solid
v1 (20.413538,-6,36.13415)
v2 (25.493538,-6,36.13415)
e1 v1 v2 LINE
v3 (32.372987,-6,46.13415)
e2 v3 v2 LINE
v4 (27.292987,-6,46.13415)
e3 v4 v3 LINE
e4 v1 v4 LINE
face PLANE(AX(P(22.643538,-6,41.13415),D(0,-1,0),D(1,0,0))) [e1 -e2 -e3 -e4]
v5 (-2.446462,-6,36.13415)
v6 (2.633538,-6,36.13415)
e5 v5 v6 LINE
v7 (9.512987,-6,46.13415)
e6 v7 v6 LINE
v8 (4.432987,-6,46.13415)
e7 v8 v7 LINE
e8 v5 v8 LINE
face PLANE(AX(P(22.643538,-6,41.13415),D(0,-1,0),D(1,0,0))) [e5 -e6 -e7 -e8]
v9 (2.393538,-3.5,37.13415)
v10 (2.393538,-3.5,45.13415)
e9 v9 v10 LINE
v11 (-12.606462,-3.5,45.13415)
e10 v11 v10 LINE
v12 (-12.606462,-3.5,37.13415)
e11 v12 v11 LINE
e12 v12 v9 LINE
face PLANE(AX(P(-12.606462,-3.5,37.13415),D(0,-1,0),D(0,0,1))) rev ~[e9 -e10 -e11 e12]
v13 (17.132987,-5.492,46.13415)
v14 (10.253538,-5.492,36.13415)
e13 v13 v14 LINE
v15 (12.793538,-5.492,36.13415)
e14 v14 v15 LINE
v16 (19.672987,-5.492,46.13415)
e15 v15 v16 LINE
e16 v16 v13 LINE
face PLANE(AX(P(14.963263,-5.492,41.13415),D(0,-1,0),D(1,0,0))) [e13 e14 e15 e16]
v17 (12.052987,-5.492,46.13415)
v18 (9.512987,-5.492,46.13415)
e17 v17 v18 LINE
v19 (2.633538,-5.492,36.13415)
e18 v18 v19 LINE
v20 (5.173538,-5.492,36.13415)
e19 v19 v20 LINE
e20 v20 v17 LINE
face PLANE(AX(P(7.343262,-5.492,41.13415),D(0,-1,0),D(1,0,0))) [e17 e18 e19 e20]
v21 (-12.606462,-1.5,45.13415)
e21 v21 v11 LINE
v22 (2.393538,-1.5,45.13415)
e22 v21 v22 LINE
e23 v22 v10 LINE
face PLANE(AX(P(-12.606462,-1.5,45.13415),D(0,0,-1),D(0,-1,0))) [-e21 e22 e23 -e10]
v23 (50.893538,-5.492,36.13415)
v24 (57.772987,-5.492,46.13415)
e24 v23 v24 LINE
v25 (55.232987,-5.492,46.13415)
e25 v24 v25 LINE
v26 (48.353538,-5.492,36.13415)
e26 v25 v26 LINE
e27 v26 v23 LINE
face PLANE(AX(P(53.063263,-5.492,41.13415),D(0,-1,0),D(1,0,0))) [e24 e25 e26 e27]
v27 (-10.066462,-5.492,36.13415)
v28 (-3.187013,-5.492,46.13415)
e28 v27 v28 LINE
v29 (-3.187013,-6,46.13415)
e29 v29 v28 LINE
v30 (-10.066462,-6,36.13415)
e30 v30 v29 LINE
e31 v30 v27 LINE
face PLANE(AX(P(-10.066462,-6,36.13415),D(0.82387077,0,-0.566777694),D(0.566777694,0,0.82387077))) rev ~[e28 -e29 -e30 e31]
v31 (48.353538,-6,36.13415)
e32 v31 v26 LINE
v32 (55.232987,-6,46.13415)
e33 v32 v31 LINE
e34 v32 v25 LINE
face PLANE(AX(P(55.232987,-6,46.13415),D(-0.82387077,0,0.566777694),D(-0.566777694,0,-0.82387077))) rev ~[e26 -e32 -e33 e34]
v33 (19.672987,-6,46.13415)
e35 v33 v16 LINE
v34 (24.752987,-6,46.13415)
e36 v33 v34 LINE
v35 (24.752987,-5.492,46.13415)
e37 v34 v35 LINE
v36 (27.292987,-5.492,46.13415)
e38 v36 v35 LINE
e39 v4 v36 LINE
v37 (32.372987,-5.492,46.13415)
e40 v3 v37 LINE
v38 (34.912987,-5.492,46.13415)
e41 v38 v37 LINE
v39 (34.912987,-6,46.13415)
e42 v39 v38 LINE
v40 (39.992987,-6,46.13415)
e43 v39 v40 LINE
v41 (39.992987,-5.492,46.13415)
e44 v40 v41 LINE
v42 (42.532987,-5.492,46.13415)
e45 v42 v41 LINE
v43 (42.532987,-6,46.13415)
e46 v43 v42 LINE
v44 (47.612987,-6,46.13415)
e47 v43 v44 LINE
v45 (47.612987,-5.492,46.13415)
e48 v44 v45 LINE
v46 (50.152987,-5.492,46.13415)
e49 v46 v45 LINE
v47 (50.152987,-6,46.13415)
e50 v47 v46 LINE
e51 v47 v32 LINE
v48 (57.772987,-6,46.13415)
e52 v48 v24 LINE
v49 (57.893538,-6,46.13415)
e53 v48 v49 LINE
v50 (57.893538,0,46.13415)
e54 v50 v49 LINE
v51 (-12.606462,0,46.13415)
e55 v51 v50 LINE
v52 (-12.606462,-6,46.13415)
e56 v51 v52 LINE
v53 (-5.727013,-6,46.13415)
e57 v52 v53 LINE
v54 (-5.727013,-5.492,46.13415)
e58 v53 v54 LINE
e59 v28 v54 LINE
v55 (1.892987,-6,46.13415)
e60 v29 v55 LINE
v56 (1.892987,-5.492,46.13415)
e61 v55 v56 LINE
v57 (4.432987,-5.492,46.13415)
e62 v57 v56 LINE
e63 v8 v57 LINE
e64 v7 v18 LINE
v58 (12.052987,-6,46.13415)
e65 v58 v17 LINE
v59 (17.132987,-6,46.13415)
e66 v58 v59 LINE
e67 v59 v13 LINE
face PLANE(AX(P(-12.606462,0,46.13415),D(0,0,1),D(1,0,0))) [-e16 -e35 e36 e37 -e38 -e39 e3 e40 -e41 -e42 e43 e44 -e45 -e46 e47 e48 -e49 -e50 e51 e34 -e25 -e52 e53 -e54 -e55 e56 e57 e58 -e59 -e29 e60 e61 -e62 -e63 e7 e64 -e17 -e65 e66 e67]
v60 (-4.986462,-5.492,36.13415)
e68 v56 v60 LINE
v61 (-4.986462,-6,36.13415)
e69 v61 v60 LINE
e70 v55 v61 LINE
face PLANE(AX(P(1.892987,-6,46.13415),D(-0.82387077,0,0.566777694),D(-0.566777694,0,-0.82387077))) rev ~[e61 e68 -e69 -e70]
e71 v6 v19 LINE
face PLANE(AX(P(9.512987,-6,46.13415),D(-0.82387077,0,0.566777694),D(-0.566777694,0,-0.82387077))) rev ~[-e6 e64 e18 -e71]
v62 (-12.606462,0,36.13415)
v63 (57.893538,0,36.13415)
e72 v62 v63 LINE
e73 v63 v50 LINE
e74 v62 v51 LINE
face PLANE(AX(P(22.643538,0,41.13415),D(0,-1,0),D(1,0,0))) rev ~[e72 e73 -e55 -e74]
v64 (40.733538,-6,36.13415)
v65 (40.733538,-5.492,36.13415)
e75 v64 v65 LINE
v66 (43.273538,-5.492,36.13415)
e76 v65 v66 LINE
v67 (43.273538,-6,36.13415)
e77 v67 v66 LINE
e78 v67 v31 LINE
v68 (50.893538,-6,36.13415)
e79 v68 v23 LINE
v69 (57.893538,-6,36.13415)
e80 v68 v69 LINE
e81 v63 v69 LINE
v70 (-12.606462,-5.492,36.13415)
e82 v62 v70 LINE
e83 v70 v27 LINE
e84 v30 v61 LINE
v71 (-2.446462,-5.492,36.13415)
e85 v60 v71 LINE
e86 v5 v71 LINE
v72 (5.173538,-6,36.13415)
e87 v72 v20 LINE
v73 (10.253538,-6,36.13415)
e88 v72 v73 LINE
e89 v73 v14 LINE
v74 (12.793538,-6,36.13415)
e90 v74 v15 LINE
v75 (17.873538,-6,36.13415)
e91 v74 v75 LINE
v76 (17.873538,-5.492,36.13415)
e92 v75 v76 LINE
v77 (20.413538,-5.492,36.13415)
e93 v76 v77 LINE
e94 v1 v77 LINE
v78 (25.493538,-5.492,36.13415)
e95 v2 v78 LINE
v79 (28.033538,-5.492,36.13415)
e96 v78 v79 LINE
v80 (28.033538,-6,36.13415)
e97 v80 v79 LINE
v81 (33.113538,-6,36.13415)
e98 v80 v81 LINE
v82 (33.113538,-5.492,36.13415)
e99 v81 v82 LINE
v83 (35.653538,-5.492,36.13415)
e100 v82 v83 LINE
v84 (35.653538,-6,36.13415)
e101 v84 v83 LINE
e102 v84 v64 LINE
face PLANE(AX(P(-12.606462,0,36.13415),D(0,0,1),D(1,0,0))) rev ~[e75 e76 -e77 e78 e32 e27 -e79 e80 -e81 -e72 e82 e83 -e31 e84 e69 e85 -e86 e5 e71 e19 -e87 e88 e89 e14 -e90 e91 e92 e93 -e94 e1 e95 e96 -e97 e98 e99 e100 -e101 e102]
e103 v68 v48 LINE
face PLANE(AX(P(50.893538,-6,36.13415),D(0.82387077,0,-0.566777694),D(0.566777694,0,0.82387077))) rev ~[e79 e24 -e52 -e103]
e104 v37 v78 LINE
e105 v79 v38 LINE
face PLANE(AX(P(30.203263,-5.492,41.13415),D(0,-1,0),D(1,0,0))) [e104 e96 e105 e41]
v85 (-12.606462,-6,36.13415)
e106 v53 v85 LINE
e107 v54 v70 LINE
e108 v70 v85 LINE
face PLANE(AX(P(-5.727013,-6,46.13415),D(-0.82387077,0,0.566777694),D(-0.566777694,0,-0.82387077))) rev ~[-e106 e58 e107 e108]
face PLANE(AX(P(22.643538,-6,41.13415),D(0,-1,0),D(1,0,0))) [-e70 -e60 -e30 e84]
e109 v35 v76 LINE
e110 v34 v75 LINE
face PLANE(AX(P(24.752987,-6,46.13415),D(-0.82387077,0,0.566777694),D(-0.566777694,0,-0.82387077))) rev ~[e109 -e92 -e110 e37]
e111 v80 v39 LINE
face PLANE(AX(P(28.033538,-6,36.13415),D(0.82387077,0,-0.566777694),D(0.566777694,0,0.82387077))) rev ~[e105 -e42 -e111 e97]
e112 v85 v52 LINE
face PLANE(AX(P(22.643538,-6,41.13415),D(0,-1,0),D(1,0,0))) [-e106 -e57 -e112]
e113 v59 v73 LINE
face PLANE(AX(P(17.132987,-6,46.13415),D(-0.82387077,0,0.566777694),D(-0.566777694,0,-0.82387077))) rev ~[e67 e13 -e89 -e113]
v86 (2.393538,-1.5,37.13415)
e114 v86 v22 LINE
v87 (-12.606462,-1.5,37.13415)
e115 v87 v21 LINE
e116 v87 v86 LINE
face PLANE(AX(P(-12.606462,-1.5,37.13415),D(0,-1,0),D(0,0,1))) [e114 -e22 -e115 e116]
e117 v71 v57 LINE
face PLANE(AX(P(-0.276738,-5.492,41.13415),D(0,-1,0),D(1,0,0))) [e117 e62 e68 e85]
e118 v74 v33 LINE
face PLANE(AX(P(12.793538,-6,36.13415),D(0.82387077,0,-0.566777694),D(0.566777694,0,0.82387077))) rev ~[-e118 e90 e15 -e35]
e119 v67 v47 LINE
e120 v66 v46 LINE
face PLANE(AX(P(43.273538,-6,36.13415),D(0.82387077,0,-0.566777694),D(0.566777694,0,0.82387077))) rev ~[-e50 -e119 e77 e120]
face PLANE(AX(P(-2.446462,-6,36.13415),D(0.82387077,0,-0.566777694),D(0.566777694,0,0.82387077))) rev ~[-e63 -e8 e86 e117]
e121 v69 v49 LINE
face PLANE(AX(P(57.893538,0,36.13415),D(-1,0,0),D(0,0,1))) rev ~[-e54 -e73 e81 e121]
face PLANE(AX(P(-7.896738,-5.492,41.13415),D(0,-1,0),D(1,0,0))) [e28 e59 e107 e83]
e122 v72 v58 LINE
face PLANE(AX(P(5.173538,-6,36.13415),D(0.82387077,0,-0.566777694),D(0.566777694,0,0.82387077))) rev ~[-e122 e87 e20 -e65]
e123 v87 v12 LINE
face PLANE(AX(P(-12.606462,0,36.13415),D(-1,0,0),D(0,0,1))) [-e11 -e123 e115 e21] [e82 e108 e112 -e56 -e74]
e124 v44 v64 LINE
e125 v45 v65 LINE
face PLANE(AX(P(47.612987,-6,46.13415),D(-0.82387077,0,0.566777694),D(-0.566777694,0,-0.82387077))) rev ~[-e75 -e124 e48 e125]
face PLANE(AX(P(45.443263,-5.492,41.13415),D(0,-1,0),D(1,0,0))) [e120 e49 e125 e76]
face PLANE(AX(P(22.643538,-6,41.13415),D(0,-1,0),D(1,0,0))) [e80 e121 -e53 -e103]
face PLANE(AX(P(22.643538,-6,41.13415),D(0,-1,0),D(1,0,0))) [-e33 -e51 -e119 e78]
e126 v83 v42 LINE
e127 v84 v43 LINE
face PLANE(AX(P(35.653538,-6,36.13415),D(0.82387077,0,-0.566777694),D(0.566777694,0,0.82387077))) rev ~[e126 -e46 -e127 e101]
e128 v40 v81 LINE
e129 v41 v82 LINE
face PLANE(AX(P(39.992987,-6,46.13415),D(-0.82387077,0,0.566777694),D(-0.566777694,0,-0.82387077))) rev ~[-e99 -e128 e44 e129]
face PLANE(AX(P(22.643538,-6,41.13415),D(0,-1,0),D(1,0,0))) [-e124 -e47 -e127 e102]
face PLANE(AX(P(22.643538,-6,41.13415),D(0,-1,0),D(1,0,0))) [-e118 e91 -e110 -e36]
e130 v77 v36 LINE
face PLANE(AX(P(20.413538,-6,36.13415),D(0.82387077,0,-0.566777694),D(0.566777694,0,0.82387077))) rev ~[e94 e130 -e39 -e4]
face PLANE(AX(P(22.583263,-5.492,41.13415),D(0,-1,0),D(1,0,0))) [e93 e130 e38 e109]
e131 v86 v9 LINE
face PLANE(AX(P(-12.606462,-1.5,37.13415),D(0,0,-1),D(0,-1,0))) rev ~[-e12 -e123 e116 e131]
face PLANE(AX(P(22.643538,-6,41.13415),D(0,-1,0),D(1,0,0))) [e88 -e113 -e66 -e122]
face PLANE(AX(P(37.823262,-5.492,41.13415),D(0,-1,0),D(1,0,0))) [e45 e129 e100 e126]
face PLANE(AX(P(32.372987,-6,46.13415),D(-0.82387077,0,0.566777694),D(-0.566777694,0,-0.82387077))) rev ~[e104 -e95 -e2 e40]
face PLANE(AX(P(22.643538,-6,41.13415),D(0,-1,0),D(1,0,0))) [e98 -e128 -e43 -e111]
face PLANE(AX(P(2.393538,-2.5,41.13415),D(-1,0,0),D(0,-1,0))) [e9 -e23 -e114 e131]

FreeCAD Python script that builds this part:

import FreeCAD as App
import Part
import Sketcher
from FreeCAD import Vector
Q = App.Units.Quantity


def add_polygon(sketch, points):
    """Adds a closed chain of lines whose ends are joined by coincident constraints."""
    first, n = sketch.GeometryCount, len(points)
    for a, b in zip(points, points[1:] + points[:1]):
        sketch.addGeometry(Part.LineSegment(App.Vector(*a, 0), App.Vector(*b, 0)), False)
    for i in range(n):
        sketch.addConstraint(Sketcher.Constraint("Coincident", first + i, 2, first + (i + 1) % n, 1))

doc = App.newDocument("Part")
params = doc.addObject("Spreadsheet::Sheet", "Params")
for row, (alias, value) in enumerate([
    ("sketch1_height", "10 mm"),
    ("sketch1_width", "70.5 mm"),
    ("pad1_length", "6 mm"),
    ("sketch2_width", "2.54 mm"),
    ("pocket1_length", "0.508 mm"),
    ("sketch3_width", "2 mm"),
    ("sketch3_height", "8 mm"),
    ("pocket2_length", "15 mm"),
], start=1):
    params.set(f"A{row}", alias)
    params.set(f"B{row}", "=" + value)
    params.setAlias(f"B{row}", alias)

body = doc.addObject("PartDesign::Body", "Body")

sketch1 = doc.addObject("Sketcher::SketchObject", "Sketch")
body.addObject(sketch1)
sketch1.AttachmentSupport = (doc.XZ_Plane, [""])
sketch1.MapMode = "FlatFace"
add_polygon(sketch1, [(-12.606462, 46.13415), (-12.606462, 36.13415), (57.893538, 36.13415), (57.893538, 46.13415)])
sketch1.addConstraint(Sketcher.Constraint("Vertical", 0))
sketch1.addConstraint(Sketcher.Constraint("Horizontal", 1))
sketch1.addConstraint(Sketcher.Constraint("Vertical", 2))
sketch1.addConstraint(Sketcher.Constraint("Horizontal", 3))
sketch1.addConstraint(Sketcher.Constraint("DistanceY", 0, 2, 0, 1, Q("10 mm")))
sketch1.addConstraint(Sketcher.Constraint("DistanceX", 1, 1, 1, 2, Q("70.5 mm")))
sketch1.addConstraint(Sketcher.Constraint("DistanceY", -1, 1, 0, 2, Q("36.13415 mm")))
sketch1.addConstraint(Sketcher.Constraint("DistanceX", 0, 2, -1, 1, Q("12.606462 mm")))
sketch1.setExpression("Constraints[8]", "Params.sketch1_height")
sketch1.setExpression("Constraints[9]", "Params.sketch1_width")
pad1 = doc.addObject("PartDesign::Pad", "Pad")
body.addObject(pad1)
pad1.Profile = sketch1
pad1.setExpression("Length", "Params.pad1_length")

sketch2 = doc.addObject("Sketcher::SketchObject", "Sketch001")
body.addObject(sketch2)
sketch2.AttachmentSupport = (doc.XZ_Plane, [""])
sketch2.MapMode = "FlatFace"
sketch2.AttachmentOffset = App.Placement(Vector(0, 0, 6), App.Rotation())
add_polygon(sketch2, [(-5.727013, 46.13415), (-12.606462, 36.13415), (-10.066462, 36.13415), (-3.187013, 46.13415)])
add_polygon(sketch2, [(4.432987, 46.13415), (1.892987, 46.13415), (-4.986462, 36.13415), (-2.446462, 36.13415)])
add_polygon(sketch2, [(12.052987, 46.13415), (9.512987, 46.13415), (2.633538, 36.13415), (5.173538, 36.13415)])
add_polygon(sketch2, [(19.672987, 46.13415), (17.132987, 46.13415), (10.253538, 36.13415), (12.793538, 36.13415)])
add_polygon(sketch2, [(27.292987, 46.13415), (24.752987, 46.13415), (17.873538, 36.13415), (20.413538, 36.13415)])
add_polygon(sketch2, [(34.912987, 46.13415), (32.372987, 46.13415), (25.493538, 36.13415), (28.033538, 36.13415)])
add_polygon(sketch2, [(42.532987, 46.13415), (39.992987, 46.13415), (33.113538, 36.13415), (35.653538, 36.13415)])
add_polygon(sketch2, [(50.152987, 46.13415), (47.612987, 46.13415), (40.733538, 36.13415), (43.273538, 36.13415)])
add_polygon(sketch2, [(57.772987, 46.13415), (55.232987, 46.13415), (48.353538, 36.13415), (50.893538, 36.13415)])
sketch2.addConstraint(Sketcher.Constraint("Horizontal", 1))
sketch2.addConstraint(Sketcher.Constraint("Horizontal", 3))
sketch2.addConstraint(Sketcher.Constraint("Horizontal", 4))
sketch2.addConstraint(Sketcher.Constraint("Horizontal", 6))
sketch2.addConstraint(Sketcher.Constraint("Horizontal", 8))
sketch2.addConstraint(Sketcher.Constraint("Horizontal", 10))
sketch2.addConstraint(Sketcher.Constraint("Horizontal", 12))
sketch2.addConstraint(Sketcher.Constraint("Horizontal", 14))
sketch2.addConstraint(Sketcher.Constraint("Horizontal", 16))
sketch2.addConstraint(Sketcher.Constraint("Horizontal", 18))
sketch2.addConstraint(Sketcher.Constraint("Horizontal", 20))
sketch2.addConstraint(Sketcher.Constraint("Horizontal", 22))
sketch2.addConstraint(Sketcher.Constraint("Horizontal", 24))
sketch2.addConstraint(Sketcher.Constraint("Horizontal", 26))
sketch2.addConstraint(Sketcher.Constraint("Horizontal", 28))
sketch2.addConstraint(Sketcher.Constraint("Horizontal", 30))
sketch2.addConstraint(Sketcher.Constraint("Horizontal", 32))
sketch2.addConstraint(Sketcher.Constraint("Horizontal", 34))
sketch2.addConstraint(Sketcher.Constraint("Parallel", 0, 2))
sketch2.addConstraint(Sketcher.Constraint("Parallel", 2, 5))
sketch2.addConstraint(Sketcher.Constraint("Parallel", 5, 7))
sketch2.addConstraint(Sketcher.Constraint("Parallel", 7, 9))
sketch2.addConstraint(Sketcher.Constraint("Parallel", 9, 11))
sketch2.addConstraint(Sketcher.Constraint("Parallel", 11, 13))
sketch2.addConstraint(Sketcher.Constraint("Parallel", 13, 15))
sketch2.addConstraint(Sketcher.Constraint("Parallel", 15, 17))
sketch2.addConstraint(Sketcher.Constraint("Parallel", 17, 19))
sketch2.addConstraint(Sketcher.Constraint("Parallel", 19, 21))
sketch2.addConstraint(Sketcher.Constraint("Parallel", 21, 23))
sketch2.addConstraint(Sketcher.Constraint("Parallel", 23, 25))
sketch2.addConstraint(Sketcher.Constraint("Parallel", 25, 27))
sketch2.addConstraint(Sketcher.Constraint("Parallel", 27, 29))
sketch2.addConstraint(Sketcher.Constraint("Parallel", 29, 31))
sketch2.addConstraint(Sketcher.Constraint("Parallel", 31, 33))
sketch2.addConstraint(Sketcher.Constraint("Parallel", 33, 35))
sketch2.addConstraint(Sketcher.Constraint("Horizontal", 3, 2, 4, 2))
sketch2.addConstraint(Sketcher.Constraint("Horizontal", 1, 2, 5, 2))
sketch2.addConstraint(Sketcher.Constraint("Horizontal", 7, 2, 8, 2))
sketch2.addConstraint(Sketcher.Constraint("Horizontal", 6, 2, 9, 2))
sketch2.addConstraint(Sketcher.Constraint("Horizontal", 11, 2, 12, 2))
sketch2.addConstraint(Sketcher.Constraint("Horizontal", 10, 2, 13, 2))
sketch2.addConstraint(Sketcher.Constraint("Horizontal", 15, 2, 16, 2))
sketch2.addConstraint(Sketcher.Constraint("Horizontal", 14, 2, 17, 2))
sketch2.addConstraint(Sketcher.Constraint("Horizontal", 19, 2, 20, 2))
sketch2.addConstraint(Sketcher.Constraint("Horizontal", 18, 2, 21, 2))
sketch2.addConstraint(Sketcher.Constraint("Horizontal", 23, 2, 24, 2))
sketch2.addConstraint(Sketcher.Constraint("Horizontal", 22, 2, 25, 2))
sketch2.addConstraint(Sketcher.Constraint("Horizontal", 27, 2, 28, 2))
sketch2.addConstraint(Sketcher.Constraint("Horizontal", 26, 2, 29, 2))
sketch2.addConstraint(Sketcher.Constraint("Horizontal", 31, 2, 32, 2))
sketch2.addConstraint(Sketcher.Constraint("Horizontal", 30, 2, 33, 2))
sketch2.addConstraint(Sketcher.Constraint("Equal", 3, 4))
sketch2.addConstraint(Sketcher.Constraint("Equal", 6, 8))
sketch2.addConstraint(Sketcher.Constraint("Equal", 10, 12))
sketch2.addConstraint(Sketcher.Constraint("Equal", 14, 16))
sketch2.addConstraint(Sketcher.Constraint("Equal", 18, 20))
sketch2.addConstraint(Sketcher.Constraint("Equal", 22, 24))
sketch2.addConstraint(Sketcher.Constraint("Equal", 26, 28))
sketch2.addConstraint(Sketcher.Constraint("Equal", 30, 32))
sketch2.addConstraint(Sketcher.Constraint("DistanceY", 1, 2, 2, 2, Q("10 mm")))
sketch2.addConstraint(Sketcher.Constraint("DistanceX", 1, 1, 1, 2, Q("2.54 mm")))
sketch2.addConstraint(Sketcher.Constraint("DistanceX", 2, 2, 8, 2, Q("12.7 mm")))
sketch2.addConstraint(Sketcher.Constraint("DistanceX", 7, 2, 12, 2, Q("12.7 mm")))
sketch2.addConstraint(Sketcher.Constraint("DistanceX", 11, 2, 16, 2, Q("12.7 mm")))
sketch2.addConstraint(Sketcher.Constraint("DistanceX", 15, 2, 20, 2, Q("12.7 mm")))
sketch2.addConstraint(Sketcher.Constraint("DistanceX", 19, 2, 24, 2, Q("12.7 mm")))
sketch2.addConstraint(Sketcher.Constraint("DistanceX", 23, 2, 28, 2, Q("12.7 mm")))
sketch2.addConstraint(Sketcher.Constraint("DistanceX", 27, 2, 32, 2, Q("12.7 mm")))
sketch2.addConstraint(Sketcher.Constraint("DistanceX", 2, 2, 4, 2, Q("5.08 mm")))
sketch2.addConstraint(Sketcher.Constraint("DistanceY", -1, 1, 0, 2, Q("36.13415 mm")))
sketch2.addConstraint(Sketcher.Constraint("DistanceX", 6, 2, -1, 1, Q("2.446462 mm")))
sketch2.addConstraint(Sketcher.Constraint("DistanceX", 1, 2, 2, 2, Q("6.879449 mm")))
sketch2.setExpression("Constraints[96]", "Params.sketch2_width")
pocket1 = doc.addObject("PartDesign::Pocket", "Pocket")
body.addObject(pocket1)
pocket1.Profile = sketch2
pocket1.setExpression("Length", "Params.pocket1_length")

sketch3 = doc.addObject("Sketcher::SketchObject", "Sketch002")
body.addObject(sketch3)
sketch3.AttachmentSupport = (doc.YZ_Plane, [""])
sketch3.MapMode = "FlatFace"
sketch3.AttachmentOffset = App.Placement(Vector(0, 0, -12.606462), App.Rotation())
add_polygon(sketch3, [(-1.5, 45.13415), (-1.5, 37.13415), (-3.5, 37.13415), (-3.5, 45.13415)])
sketch3.addConstraint(Sketcher.Constraint("Vertical", 0))
sketch3.addConstraint(Sketcher.Constraint("Horizontal", 1))
sketch3.addConstraint(Sketcher.Constraint("Vertical", 2))
sketch3.addConstraint(Sketcher.Constraint("Horizontal", 3))
sketch3.addConstraint(Sketcher.Constraint("DistanceX", 1, 2, 1, 1, Q("2 mm")))
sketch3.addConstraint(Sketcher.Constraint("DistanceY", 0, 2, 0, 1, Q("8 mm")))
sketch3.addConstraint(Sketcher.Constraint("DistanceX", 0, 2, -1, 1, Q("1.5 mm")))
sketch3.addConstraint(Sketcher.Constraint("DistanceY", -1, 1, 0, 2, Q("37.13415 mm")))
sketch3.setExpression("Constraints[8]", "Params.sketch3_width")
sketch3.setExpression("Constraints[9]", "Params.sketch3_height")
pocket2 = doc.addObject("PartDesign::Pocket", "Pocket001")
body.addObject(pocket2)
pocket2.Profile = sketch3
pocket2.setExpression("Length", "Params.pocket2_length")
pocket2.Reversed = True

doc.recompute()
